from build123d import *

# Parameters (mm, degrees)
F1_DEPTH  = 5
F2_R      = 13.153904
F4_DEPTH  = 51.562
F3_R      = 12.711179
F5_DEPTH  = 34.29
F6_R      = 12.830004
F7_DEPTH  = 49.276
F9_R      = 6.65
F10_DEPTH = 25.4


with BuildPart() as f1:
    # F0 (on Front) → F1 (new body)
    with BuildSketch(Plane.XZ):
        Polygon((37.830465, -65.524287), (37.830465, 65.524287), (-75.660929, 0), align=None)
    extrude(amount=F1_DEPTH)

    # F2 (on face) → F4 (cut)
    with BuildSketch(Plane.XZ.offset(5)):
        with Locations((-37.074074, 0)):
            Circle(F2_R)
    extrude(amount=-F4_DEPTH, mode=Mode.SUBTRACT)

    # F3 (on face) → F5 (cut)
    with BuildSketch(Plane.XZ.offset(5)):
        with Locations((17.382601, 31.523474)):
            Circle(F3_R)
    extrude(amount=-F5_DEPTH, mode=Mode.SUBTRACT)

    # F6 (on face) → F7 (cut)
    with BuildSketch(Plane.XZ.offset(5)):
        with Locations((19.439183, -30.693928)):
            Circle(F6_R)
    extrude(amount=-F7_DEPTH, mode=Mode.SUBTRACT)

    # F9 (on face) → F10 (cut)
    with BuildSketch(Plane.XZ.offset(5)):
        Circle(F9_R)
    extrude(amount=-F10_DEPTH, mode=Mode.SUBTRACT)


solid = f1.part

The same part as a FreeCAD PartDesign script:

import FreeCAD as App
import Part
import Sketcher
from FreeCAD import Vector
Q = App.Units.Quantity


def add_polygon(sketch, points):
    """Adds a closed chain of lines whose ends are joined by coincident constraints."""
    first, n = sketch.GeometryCount, len(points)
    for a, b in zip(points, points[1:] + points[:1]):
        sketch.addGeometry(Part.LineSegment(App.Vector(*a, 0), App.Vector(*b, 0)), False)
    for i in range(n):
        sketch.addConstraint(Sketcher.Constraint("Coincident", first + i, 2, first + (i + 1) % n, 1))

doc = App.newDocument("Part")
body = doc.addObject("PartDesign::Body", "Body")

sketch1 = body.newObject("Sketcher::SketchObject", "Sketch")
sketch1.AttachmentSupport = (doc.getObject("XZ_Plane"), [""])
sketch1.MapMode = "FlatFace"
add_polygon(sketch1, [(38, -66), (38, 66), (-76, 0)])
sketch1.addConstraint(Sketcher.Constraint("Vertical", 0))
sketch1.addConstraint(Sketcher.Constraint("PointOnObject", 1, 2, -1))
sketch1.addConstraint(Sketcher.Constraint("Equal", 1, 2))
sketch1.addConstraint(Sketcher.Constraint("Angle", 1, Q("-150 deg")))
sketch1.addConstraint(Sketcher.Constraint("DistanceY", 0, 1, 0, 2, Q("131.048574 mm")))
sketch1.addConstraint(Sketcher.Constraint("DistanceX", 1, 2, -1, 1, Q("75.660929 mm")))
pad1 = body.newObject("PartDesign::Pad", "Pad")
pad1.Profile = sketch1
pad1.Length = 5

sketch2 = body.newObject("Sketcher::SketchObject", "Sketch001")
sketch2.AttachmentSupport = (doc.getObject("XZ_Plane"), [""])
sketch2.MapMode = "FlatFace"
sketch2.AttachmentOffset = App.Placement(Vector(0, 0, 5), App.Rotation())
sketch2.addGeometry(Part.Circle(Vector(-37, 0, 0), Vector(0, 0, 1), 13), False)
sketch2.addConstraint(Sketcher.Constraint("PointOnObject", 0, 3, -1))
sketch2.addConstraint(Sketcher.Constraint("Diameter", 0, Q("26.307808 mm")))
sketch2.addConstraint(Sketcher.Constraint("DistanceX", 0, 3, -1, 1, Q("37.074074 mm")))
pocket1 = body.newObject("PartDesign::Pocket", "Pocket")
pocket1.Profile = sketch2
pocket1.Length = Q("2.03 in")

sketch3 = body.newObject("Sketcher::SketchObject", "Sketch002")
sketch3.AttachmentSupport = (doc.getObject("XZ_Plane"), [""])
sketch3.MapMode = "FlatFace"
sketch3.AttachmentOffset = App.Placement(Vector(0, 0, 5), App.Rotation())
sketch3.addGeometry(Part.Circle(Vector(17, 32, 0), Vector(0, 0, 1), 13), False)
sketch3.addConstraint(Sketcher.Constraint("Diameter", 0, Q("25.422358 mm")))
sketch3.addConstraint(Sketcher.Constraint("DistanceX", -1, 1, 0, 3, Q("17.382601 mm")))
sketch3.addConstraint(Sketcher.Constraint("DistanceY", -1, 1, 0, 3, Q("31.523474 mm")))
pocket2 = body.newObject("PartDesign::Pocket", "Pocket001")
pocket2.Profile = sketch3
pocket2.Length = Q("1.35 in")

sketch4 = body.newObject("Sketcher::SketchObject", "Sketch003")
sketch4.AttachmentSupport = (doc.getObject("XZ_Plane"), [""])
sketch4.MapMode = "FlatFace"
sketch4.AttachmentOffset = App.Placement(Vector(0, 0, 5), App.Rotation())
sketch4.addGeometry(Part.Circle(Vector(19, -31, 0), Vector(0, 0, 1), 13), False)
sketch4.addConstraint(Sketcher.Constraint("Diameter", 0, Q("25.660008 mm")))
sketch4.addConstraint(Sketcher.Constraint("DistanceX", -1, 1, 0, 3, Q("19.439183 mm")))
sketch4.addConstraint(Sketcher.Constraint("DistanceY", 0, 3, -1, 1, Q("30.693928 mm")))
pocket3 = body.newObject("PartDesign::Pocket", "Pocket002")
pocket3.Profile = sketch4
pocket3.Length = Q("1.94 in")

sketch5 = body.newObject("Sketcher::SketchObject", "Sketch004")
sketch5.AttachmentSupport = (doc.getObject("XZ_Plane"), [""])
sketch5.MapMode = "FlatFace"
sketch5.AttachmentOffset = App.Placement(Vector(0, 0, 5), App.Rotation())
sketch5.addGeometry(Part.Circle(Vector(0, 0, 0), Vector(0, 0, 1), 7), False)
sketch5.addConstraint(Sketcher.Constraint("Coincident", 0, 3, -1, 1))
sketch5.addConstraint(Sketcher.Constraint("Diameter", 0, Q("13.3 mm")))
pocket4 = body.newObject("PartDesign::Pocket", "Pocket003")
pocket4.Profile = sketch5
pocket4.Length = Q("1 in")

doc.recompute()
